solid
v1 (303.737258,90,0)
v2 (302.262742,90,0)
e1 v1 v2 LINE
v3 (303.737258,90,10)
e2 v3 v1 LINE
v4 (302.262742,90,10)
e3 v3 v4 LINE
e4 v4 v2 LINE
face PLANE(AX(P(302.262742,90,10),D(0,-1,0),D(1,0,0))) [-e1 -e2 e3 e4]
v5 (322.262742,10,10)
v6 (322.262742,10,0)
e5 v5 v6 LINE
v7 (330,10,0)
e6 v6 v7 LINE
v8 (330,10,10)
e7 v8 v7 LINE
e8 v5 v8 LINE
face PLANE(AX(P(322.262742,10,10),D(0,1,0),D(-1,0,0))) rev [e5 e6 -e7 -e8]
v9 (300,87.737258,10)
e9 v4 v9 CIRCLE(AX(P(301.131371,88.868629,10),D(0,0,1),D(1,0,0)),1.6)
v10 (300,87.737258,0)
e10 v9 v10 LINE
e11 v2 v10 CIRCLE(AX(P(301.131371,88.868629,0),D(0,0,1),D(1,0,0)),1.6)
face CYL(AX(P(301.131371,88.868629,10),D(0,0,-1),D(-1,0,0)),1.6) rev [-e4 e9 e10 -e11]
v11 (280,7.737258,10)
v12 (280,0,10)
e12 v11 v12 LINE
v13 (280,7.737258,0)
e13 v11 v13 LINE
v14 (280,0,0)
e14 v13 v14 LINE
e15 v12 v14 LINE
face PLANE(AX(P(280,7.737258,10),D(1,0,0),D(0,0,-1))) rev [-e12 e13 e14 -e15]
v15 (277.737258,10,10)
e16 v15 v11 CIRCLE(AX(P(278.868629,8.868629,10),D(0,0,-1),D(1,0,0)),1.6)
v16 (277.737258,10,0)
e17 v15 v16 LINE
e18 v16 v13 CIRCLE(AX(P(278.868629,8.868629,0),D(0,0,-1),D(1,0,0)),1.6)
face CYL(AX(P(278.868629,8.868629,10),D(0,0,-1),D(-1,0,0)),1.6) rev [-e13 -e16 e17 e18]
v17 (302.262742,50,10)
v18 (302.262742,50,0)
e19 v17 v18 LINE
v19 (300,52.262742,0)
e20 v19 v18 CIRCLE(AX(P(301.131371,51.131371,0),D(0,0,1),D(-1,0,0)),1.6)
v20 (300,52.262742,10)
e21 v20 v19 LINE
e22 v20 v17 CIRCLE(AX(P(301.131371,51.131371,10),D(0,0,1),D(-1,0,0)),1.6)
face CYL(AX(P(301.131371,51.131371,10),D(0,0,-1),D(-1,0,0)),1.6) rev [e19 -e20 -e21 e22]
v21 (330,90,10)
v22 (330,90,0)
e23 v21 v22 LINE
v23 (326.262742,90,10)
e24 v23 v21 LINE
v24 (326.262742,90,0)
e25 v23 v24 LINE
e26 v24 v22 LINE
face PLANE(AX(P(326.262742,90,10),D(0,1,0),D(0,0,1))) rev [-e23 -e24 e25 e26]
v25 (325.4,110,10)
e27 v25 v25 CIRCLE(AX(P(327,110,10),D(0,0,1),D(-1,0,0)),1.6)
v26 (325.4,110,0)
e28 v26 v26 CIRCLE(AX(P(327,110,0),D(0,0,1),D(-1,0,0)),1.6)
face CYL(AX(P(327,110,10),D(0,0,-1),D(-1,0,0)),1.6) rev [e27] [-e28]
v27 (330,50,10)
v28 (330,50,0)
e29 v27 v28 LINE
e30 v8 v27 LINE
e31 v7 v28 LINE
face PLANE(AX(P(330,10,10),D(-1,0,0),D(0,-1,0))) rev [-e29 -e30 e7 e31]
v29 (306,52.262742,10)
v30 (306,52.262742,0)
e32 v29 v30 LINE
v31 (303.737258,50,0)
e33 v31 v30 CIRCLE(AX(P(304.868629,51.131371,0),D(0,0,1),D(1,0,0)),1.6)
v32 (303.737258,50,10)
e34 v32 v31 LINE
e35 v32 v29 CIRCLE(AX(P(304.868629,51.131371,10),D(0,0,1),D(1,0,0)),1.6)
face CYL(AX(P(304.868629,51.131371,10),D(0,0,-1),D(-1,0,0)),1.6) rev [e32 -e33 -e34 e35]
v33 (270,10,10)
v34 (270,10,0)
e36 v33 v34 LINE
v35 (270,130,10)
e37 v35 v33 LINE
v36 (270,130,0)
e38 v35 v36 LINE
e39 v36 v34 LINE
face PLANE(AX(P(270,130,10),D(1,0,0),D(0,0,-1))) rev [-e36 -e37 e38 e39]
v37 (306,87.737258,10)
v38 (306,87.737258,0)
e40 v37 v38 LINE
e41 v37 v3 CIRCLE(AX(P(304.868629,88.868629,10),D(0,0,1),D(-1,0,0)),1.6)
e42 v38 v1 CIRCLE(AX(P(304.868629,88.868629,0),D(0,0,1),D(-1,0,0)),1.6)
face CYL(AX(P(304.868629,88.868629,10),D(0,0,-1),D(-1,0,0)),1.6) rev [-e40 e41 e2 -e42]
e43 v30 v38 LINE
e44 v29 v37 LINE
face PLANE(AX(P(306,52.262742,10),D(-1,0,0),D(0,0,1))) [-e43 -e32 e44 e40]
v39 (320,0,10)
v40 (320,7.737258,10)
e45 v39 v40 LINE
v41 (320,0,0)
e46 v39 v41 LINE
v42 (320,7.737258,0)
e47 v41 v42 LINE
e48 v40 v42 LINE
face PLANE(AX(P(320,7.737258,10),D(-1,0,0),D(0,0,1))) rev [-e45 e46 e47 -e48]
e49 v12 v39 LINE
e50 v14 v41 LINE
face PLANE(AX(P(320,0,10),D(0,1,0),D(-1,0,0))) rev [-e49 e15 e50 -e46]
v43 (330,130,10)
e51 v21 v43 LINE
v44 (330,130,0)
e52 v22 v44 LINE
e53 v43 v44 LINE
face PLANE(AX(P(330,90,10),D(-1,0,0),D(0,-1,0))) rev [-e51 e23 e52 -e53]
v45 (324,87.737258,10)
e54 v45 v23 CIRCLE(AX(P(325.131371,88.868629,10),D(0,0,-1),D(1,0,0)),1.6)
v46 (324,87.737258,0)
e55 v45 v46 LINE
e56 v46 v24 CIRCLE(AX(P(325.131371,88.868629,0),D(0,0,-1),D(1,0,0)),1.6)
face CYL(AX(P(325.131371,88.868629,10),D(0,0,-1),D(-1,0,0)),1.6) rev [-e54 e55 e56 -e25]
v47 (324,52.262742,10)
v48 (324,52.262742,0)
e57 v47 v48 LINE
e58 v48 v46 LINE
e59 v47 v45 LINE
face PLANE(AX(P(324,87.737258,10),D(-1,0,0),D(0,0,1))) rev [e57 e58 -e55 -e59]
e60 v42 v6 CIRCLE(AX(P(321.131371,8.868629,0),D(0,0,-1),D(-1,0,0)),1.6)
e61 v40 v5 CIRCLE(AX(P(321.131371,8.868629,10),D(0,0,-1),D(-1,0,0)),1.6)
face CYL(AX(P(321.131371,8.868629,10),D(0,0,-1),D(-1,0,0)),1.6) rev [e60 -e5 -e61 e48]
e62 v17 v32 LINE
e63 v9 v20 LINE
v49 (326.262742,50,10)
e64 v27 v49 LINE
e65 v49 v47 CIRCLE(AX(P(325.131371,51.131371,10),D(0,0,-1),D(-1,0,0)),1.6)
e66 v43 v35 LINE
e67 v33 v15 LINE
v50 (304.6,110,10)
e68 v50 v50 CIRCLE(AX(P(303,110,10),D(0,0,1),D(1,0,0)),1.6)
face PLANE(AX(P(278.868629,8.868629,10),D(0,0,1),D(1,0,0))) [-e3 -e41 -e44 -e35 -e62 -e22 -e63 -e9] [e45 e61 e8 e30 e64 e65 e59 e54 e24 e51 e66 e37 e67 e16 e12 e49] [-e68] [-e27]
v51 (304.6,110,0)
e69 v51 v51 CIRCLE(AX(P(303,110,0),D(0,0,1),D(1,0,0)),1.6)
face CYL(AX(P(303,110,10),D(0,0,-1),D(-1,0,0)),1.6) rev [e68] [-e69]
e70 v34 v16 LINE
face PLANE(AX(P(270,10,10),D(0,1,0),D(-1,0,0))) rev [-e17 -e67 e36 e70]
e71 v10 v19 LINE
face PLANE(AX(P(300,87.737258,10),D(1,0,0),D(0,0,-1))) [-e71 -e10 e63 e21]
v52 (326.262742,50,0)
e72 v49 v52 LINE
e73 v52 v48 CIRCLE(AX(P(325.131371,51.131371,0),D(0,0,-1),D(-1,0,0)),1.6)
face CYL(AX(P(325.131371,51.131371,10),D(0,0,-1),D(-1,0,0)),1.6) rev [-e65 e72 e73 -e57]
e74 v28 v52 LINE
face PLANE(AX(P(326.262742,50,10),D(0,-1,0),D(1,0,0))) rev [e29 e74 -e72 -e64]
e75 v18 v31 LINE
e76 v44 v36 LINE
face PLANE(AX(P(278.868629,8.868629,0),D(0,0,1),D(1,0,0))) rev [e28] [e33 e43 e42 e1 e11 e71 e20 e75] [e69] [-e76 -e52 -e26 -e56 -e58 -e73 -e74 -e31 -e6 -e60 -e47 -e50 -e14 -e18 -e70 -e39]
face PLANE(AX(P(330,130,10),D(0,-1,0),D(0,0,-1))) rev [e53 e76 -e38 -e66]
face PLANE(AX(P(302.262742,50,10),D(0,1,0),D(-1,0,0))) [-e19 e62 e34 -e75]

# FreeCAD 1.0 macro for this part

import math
import FreeCAD as App
import Part
import Sketcher

doc = App.newDocument("Part")
body = doc.addObject("PartDesign::Body", "Body")

# Sketch on XY plane
sketch1 = body.newObject("Sketcher::SketchObject", "Sketch")
sketch1.AttachmentSupport = (doc.getObject("XY_Plane"), [""])
sketch1.MapMode = "FlatFace"
sketch1.addGeometry([
    Part.LineSegment(App.Vector(330, 50, 0), App.Vector(326.3, 50, 0)),  # 0
    Part.ArcOfCircle(Part.Circle(App.Vector(325.1, 51.1, 0), App.Vector(0, 0, 1), 1.6), math.radians(135), math.radians(315)),  # 1
    Part.LineSegment(App.Vector(324, 52.3, 0), App.Vector(324, 87.7, 0)),  # 2
    Part.ArcOfCircle(Part.Circle(App.Vector(325.1, 88.9, 0), App.Vector(0, 0, 1), 1.6), math.radians(45), math.radians(225)),  # 3
    Part.LineSegment(App.Vector(326.3, 90, 0), App.Vector(330, 90, 0)),  # 4
    Part.LineSegment(App.Vector(330, 90, 0), App.Vector(330, 130, 0)),  # 5
    Part.LineSegment(App.Vector(330, 130, 0), App.Vector(270, 130, 0)),  # 6
    Part.LineSegment(App.Vector(270, 130, 0), App.Vector(270, 10, 0)),  # 7
    Part.LineSegment(App.Vector(270, 10, 0), App.Vector(277.7, 10, 0)),  # 8
    Part.ArcOfCircle(Part.Circle(App.Vector(278.9, 8.9, 0), App.Vector(0, 0, 1), 1.6), math.radians(-45), math.radians(135)),  # 9
    Part.LineSegment(App.Vector(280, 7.7, 0), App.Vector(280, 0, 0)),  # 10
    Part.LineSegment(App.Vector(280, 0, 0), App.Vector(320, 0, 0)),  # 11
    Part.LineSegment(App.Vector(320, 0, 0), App.Vector(320, 7.7, 0)),  # 12
    Part.ArcOfCircle(Part.Circle(App.Vector(321.1, 8.9, 0), App.Vector(0, 0, 1), 1.6), math.radians(45), math.radians(225)),  # 13
    Part.LineSegment(App.Vector(322.3, 10, 0), App.Vector(330, 10, 0)),  # 14
    Part.LineSegment(App.Vector(330, 10, 0), App.Vector(330, 50, 0)),  # 15
    Part.ArcOfCircle(Part.Circle(App.Vector(301.1, 51.1, 0), App.Vector(0, 0, 1), 1.6), math.radians(135), math.radians(315)),  # 16
    Part.LineSegment(App.Vector(300, 52.3, 0), App.Vector(300, 87.7, 0)),  # 17
    Part.ArcOfCircle(Part.Circle(App.Vector(301.1, 88.9, 0), App.Vector(0, 0, 1), 1.6), math.radians(45), math.radians(225)),  # 18
    Part.LineSegment(App.Vector(302.3, 90, 0), App.Vector(303.7, 90, 0)),  # 19
    Part.ArcOfCircle(Part.Circle(App.Vector(304.9, 88.9, 0), App.Vector(0, 0, 1), 1.6), math.radians(-45), math.radians(135)),  # 20
    Part.LineSegment(App.Vector(306, 87.7, 0), App.Vector(306, 52.3, 0)),  # 21
    Part.ArcOfCircle(Part.Circle(App.Vector(304.9, 51.1, 0), App.Vector(0, 0, 1), 1.6), math.radians(-135), math.radians(45)),  # 22
    Part.LineSegment(App.Vector(303.7, 50, 0), App.Vector(302.3, 50, 0)),  # 23
    Part.Circle(App.Vector(327, 110, 0), App.Vector(0, 0, 1), 1.6),  # 24
    Part.Circle(App.Vector(303, 110, 0), App.Vector(0, 0, 1), 1.6),  # 25
], False)
sketch1.addConstraint([
    Sketcher.Constraint("Coincident", 0, 2, 1, 2),
    Sketcher.Constraint("Coincident", 1, 1, 2, 1),
    Sketcher.Constraint("Coincident", 2, 2, 3, 2),
    Sketcher.Constraint("Coincident", 3, 1, 4, 1),
    Sketcher.Constraint("Coincident", 4, 2, 5, 1),
    Sketcher.Constraint("Coincident", 5, 2, 6, 1),
    Sketcher.Constraint("Coincident", 6, 2, 7, 1),
    Sketcher.Constraint("Coincident", 7, 2, 8, 1),
    Sketcher.Constraint("Coincident", 8, 2, 9, 2),
    Sketcher.Constraint("Coincident", 9, 1, 10, 1),
    Sketcher.Constraint("Coincident", 10, 2, 11, 1),
    Sketcher.Constraint("Coincident", 11, 2, 12, 1),
    Sketcher.Constraint("Coincident", 12, 2, 13, 2),
    Sketcher.Constraint("Coincident", 13, 1, 14, 1),
    Sketcher.Constraint("Coincident", 14, 2, 15, 1),
    Sketcher.Constraint("Coincident", 15, 2, 0, 1),
    Sketcher.Constraint("Coincident", 16, 1, 17, 1),
    Sketcher.Constraint("Coincident", 17, 2, 18, 2),
    Sketcher.Constraint("Coincident", 18, 1, 19, 1),
    Sketcher.Constraint("Coincident", 19, 2, 20, 2),
    Sketcher.Constraint("Coincident", 20, 1, 21, 1),
    Sketcher.Constraint("Coincident", 21, 2, 22, 2),
    Sketcher.Constraint("Coincident", 22, 1, 23, 1),
    Sketcher.Constraint("Coincident", 23, 2, 16, 2),
    Sketcher.Constraint("Horizontal", 0),
    Sketcher.Constraint("Vertical", 2),
    Sketcher.Constraint("Horizontal", 4),
    Sketcher.Constraint("Vertical", 5),
    Sketcher.Constraint("Horizontal", 6),
    Sketcher.Constraint("Vertical", 7),
    Sketcher.Constraint("Horizontal", 8),
    Sketcher.Constraint("Vertical", 10),
    Sketcher.Constraint("Horizontal", 11),
    Sketcher.Constraint("Vertical", 12),
    Sketcher.Constraint("Horizontal", 14),
    Sketcher.Constraint("Vertical", 15),
    Sketcher.Constraint("Vertical", 17),
    Sketcher.Constraint("Horizontal", 19),
    Sketcher.Constraint("Vertical", 21),
    Sketcher.Constraint("Horizontal", 23),
    Sketcher.Constraint("Equal", 1, 3),
    Sketcher.Constraint("Equal", 3, 9),
    Sketcher.Constraint("Equal", 9, 13),
    Sketcher.Constraint("Equal", 13, 16),
    Sketcher.Constraint("Equal", 16, 18),
    Sketcher.Constraint("Equal", 18, 20),
    Sketcher.Constraint("Equal", 20, 22),
    Sketcher.Constraint("Equal", 22, 24),
    Sketcher.Constraint("Equal", 24, 25),
    Sketcher.Constraint("PointOnObject", 10, 2, -1),
    Sketcher.Constraint("Horizontal", 9, 3, 13, 3),
    Sketcher.Constraint("Horizontal", 1, 3, 16, 3),
    Sketcher.Constraint("Horizontal", 3, 3, 18, 3),
    Sketcher.Constraint("Horizontal", 18, 3, 20, 3),
    Sketcher.Constraint("Horizontal", 16, 3, 22, 3),
    Sketcher.Constraint("Horizontal", 24, 3, 25, 3),
    Sketcher.Constraint("Horizontal", 9, 1, 12, 2),
    Sketcher.Constraint("Horizontal", 8, 2, 13, 1),
    Sketcher.Constraint("Horizontal", 1, 1, 16, 1),
    Sketcher.Constraint("Horizontal", 2, 2, 17, 2),
    Sketcher.Constraint("Horizontal", 4, 2, 18, 1),
    Sketcher.Constraint("Horizontal", 17, 2, 20, 1),
    Sketcher.Constraint("Horizontal", 16, 1, 21, 2),
    Sketcher.Constraint("Horizontal", 15, 2, 22, 1),
    Sketcher.Constraint("Vertical", 1, 3, 3, 3),
    Sketcher.Constraint("Vertical", 0, 2, 3, 1),
    Sketcher.Constraint("Vertical", 5, 2, 14, 2),
    Sketcher.Constraint("Equal", 8, 14),
    Sketcher.Constraint("Equal", 11, 5),
    Sketcher.Constraint("Equal", 14, 10),
    Sketcher.Constraint("Equal", 5, 15),
    Sketcher.Constraint("Diameter", 24, 3.2),
    Sketcher.Constraint("DistanceX", 6, 2, 6, 1, 60.0),
    Sketcher.Constraint("DistanceX", 11, 1, 11, 2, 40.0),
    Sketcher.Constraint("DistanceY", 7, 2, 7, 1, 120.0),
    Sketcher.Constraint("DistanceX", -1, 1, 24, 3, 327.0),
    Sketcher.Constraint("DistanceY", -1, 1, 24, 3, 110.0),
    Sketcher.Constraint("DistanceX", -1, 1, 25, 3, 303.0),
    Sketcher.Constraint("DistanceY", -1, 1, 0, 2, 50.0),
    Sketcher.Constraint("DistanceX", -1, 1, 1, 1, 324.0),
    Sketcher.Constraint("DistanceX", -1, 1, 4, 2, 330.0),
    Sketcher.Constraint("DistanceX", -1, 1, 16, 1, 300.0),
    Sketcher.Constraint("DistanceX", -1, 1, 20, 1, 306.0),
    Sketcher.Constraint("DistanceY", 9, 3, 3, 3, 80.0),
    Sketcher.Constraint("DistanceX", 13, 3, 1, 3, 4.0),
    Sketcher.Constraint("DistanceX", -1, 1, 1, 3, 325.131371),
])
pad1 = body.newObject("PartDesign::Pad", "Pad")
pad1.Profile = sketch1
pad1.Length = 10

doc.recompute()
